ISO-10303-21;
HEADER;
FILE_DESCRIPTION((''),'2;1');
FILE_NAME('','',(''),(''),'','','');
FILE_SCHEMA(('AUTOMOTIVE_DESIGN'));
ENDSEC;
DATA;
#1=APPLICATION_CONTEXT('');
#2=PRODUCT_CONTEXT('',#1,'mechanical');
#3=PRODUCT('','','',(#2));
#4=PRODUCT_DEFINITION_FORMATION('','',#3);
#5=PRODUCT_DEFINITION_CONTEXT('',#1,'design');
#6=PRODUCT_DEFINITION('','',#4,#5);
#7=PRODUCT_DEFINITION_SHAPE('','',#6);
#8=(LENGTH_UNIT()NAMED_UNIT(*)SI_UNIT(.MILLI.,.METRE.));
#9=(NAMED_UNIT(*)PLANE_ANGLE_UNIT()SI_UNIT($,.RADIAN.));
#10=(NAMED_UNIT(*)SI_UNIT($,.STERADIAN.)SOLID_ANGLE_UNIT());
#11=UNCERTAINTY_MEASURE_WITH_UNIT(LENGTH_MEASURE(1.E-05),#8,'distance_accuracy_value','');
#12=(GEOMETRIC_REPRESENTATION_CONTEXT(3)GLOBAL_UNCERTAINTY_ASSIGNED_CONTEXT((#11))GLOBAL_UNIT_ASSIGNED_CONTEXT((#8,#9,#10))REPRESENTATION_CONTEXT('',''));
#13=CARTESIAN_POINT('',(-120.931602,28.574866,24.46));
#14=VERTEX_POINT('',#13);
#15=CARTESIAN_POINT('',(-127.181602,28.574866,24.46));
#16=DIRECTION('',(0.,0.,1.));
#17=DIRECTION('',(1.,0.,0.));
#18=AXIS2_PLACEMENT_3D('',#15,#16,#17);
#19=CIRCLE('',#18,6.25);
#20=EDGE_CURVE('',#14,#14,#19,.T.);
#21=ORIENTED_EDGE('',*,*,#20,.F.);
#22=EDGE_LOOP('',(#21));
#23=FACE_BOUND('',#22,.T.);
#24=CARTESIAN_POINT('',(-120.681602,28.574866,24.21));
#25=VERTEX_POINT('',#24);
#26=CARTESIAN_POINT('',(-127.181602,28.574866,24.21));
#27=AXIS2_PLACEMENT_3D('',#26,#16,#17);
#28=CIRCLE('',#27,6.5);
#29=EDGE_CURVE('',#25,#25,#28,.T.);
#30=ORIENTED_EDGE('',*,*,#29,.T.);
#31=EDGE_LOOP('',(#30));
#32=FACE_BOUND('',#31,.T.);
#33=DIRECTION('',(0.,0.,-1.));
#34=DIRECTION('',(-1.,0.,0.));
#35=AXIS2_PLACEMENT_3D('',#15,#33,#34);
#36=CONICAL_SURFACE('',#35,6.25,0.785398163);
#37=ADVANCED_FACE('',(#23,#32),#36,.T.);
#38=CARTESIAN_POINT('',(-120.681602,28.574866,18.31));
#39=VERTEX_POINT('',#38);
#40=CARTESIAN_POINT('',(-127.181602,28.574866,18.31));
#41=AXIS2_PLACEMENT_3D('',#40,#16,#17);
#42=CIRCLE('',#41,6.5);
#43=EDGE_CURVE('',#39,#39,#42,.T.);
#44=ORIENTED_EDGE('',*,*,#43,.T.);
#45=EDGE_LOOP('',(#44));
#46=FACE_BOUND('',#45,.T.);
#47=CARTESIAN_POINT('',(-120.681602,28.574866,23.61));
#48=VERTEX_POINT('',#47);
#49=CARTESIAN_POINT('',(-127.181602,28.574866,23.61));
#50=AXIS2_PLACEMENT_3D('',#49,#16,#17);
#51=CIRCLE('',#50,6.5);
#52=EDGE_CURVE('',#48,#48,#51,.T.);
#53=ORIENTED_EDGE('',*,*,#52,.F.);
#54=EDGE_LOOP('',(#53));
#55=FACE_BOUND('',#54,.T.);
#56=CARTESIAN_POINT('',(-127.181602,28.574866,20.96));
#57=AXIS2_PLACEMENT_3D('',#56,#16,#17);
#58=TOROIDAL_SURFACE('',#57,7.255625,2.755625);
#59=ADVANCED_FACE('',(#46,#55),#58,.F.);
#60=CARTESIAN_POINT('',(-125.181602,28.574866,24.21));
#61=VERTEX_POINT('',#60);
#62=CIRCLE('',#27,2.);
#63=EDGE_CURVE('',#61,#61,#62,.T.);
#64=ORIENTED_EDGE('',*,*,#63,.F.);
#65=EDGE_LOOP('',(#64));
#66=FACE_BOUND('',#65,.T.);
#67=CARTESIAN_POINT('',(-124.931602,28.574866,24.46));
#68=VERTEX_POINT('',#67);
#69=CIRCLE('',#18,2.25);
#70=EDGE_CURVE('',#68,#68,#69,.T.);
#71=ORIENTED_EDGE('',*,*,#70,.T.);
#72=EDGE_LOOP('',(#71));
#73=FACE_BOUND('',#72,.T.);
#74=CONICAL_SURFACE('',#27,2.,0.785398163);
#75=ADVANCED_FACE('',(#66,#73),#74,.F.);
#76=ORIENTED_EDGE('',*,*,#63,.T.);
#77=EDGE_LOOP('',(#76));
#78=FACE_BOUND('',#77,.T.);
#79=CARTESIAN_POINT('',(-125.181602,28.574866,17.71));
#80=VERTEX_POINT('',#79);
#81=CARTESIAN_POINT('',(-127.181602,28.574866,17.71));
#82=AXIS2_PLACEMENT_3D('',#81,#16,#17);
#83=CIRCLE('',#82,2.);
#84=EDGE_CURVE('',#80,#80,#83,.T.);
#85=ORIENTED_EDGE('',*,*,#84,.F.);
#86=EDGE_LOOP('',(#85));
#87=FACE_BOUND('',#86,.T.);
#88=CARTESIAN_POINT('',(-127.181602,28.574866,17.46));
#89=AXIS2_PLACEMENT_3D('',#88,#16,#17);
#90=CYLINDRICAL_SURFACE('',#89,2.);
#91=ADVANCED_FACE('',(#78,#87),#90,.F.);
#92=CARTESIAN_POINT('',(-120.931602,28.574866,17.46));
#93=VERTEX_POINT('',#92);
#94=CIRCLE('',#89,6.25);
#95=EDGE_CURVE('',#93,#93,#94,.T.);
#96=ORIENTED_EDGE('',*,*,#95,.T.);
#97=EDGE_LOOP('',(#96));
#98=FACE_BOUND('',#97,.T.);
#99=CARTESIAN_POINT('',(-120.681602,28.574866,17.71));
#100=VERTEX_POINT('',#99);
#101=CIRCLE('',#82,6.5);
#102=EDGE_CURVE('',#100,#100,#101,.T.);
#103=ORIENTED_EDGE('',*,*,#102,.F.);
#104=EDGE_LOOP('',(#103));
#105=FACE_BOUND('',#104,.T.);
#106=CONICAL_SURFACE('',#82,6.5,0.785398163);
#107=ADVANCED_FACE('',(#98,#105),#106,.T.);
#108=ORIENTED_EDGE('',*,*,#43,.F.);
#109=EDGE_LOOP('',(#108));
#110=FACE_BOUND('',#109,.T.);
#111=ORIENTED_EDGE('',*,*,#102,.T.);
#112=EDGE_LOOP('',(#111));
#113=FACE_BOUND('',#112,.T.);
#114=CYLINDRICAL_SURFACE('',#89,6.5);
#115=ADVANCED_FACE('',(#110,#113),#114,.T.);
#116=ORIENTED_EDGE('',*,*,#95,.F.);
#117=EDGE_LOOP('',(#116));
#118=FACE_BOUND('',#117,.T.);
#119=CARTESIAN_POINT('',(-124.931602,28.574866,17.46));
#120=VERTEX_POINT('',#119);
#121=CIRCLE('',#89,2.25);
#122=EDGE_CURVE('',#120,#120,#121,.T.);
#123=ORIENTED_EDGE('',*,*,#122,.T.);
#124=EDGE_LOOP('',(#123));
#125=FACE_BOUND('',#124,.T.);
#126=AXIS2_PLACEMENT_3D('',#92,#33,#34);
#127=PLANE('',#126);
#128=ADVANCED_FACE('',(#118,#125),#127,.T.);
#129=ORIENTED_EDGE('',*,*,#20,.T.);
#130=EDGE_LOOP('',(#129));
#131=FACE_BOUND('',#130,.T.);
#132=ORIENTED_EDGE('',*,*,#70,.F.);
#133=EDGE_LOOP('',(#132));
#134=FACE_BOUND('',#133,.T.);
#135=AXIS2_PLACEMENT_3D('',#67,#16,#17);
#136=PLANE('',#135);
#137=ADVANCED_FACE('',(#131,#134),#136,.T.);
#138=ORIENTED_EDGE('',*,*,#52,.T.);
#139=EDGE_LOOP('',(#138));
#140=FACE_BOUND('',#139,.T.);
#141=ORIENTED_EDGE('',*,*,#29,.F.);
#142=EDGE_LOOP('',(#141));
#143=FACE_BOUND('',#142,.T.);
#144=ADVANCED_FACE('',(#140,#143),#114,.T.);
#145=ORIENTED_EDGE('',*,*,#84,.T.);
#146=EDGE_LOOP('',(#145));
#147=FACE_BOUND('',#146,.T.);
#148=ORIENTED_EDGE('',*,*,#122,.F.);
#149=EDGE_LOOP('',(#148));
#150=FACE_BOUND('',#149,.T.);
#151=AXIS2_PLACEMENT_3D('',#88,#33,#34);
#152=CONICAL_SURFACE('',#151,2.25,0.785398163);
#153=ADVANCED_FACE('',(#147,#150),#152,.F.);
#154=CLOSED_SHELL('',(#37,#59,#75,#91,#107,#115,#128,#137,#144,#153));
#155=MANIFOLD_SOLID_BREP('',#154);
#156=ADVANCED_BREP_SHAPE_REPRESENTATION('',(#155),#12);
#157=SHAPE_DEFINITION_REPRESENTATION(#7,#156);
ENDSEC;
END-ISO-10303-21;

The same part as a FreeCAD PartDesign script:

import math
import FreeCAD as App
import Part
import Sketcher
from FreeCAD import Vector
Q = App.Units.Quantity

doc = App.newDocument("Part")
params = doc.addObject("Spreadsheet::Sheet", "Params")
for row, (alias, value) in enumerate([
    ("sketch1_width", "4 mm"),
    ("sketch1_height", "7 mm"),
    ("sketch1_height2", "6.5 mm"),
    ("sketch1_height3", "0.6 mm"),
    ("revolution_angle", "360 deg"),
], start=1):
    params.set(f"A{row}", alias)
    params.set(f"B{row}", "=" + value)
    params.setAlias(f"B{row}", alias)

body = doc.addObject("PartDesign::Body", "Body")

sketch1 = body.newObject("Sketcher::SketchObject", "Sketch")
sketch1.AttachmentSupport = (doc.getObject("XZ_Plane"), [""])
sketch1.MapMode = "FlatFace"
sketch1.AttachmentOffset = App.Placement(Vector(0, 0, -28.574866), App.Rotation())
sketch1.addGeometry([
    Part.LineSegment(Vector(-120.681602, 17.71, 0), Vector(-120.931602, 17.46, 0)),
    Part.LineSegment(Vector(-120.931602, 17.46, 0), Vector(-124.931602, 17.46, 0)),
    Part.LineSegment(Vector(-124.931602, 17.46, 0), Vector(-125.181602, 17.71, 0)),
    Part.LineSegment(Vector(-125.181602, 17.71, 0), Vector(-125.181602, 24.21, 0)),
    Part.LineSegment(Vector(-125.181602, 24.21, 0), Vector(-124.931602, 24.46, 0)),
    Part.LineSegment(Vector(-124.931602, 24.46, 0), Vector(-120.931602, 24.46, 0)),
    Part.LineSegment(Vector(-120.931602, 24.46, 0), Vector(-120.681602, 24.21, 0)),
    Part.LineSegment(Vector(-120.681602, 24.21, 0), Vector(-120.681602, 23.61, 0)),
    Part.ArcOfCircle(Part.Circle(Vector(-119.925977, 20.96, 0), Vector(0, 0, 1), 2.755625), math.radians(105.91505), math.radians(254.08495)),
    Part.LineSegment(Vector(-120.681602, 18.31, 0), Vector(-120.681602, 17.71, 0)),
], False)
sketch1.addGeometry(Part.LineSegment(Vector(-127.181602, 17.46, 0), Vector(-127.181602, 24.46, 0)), True)
sketch1.addConstraint([
    Sketcher.Constraint("Coincident", 0, 2, 1, 1),
    Sketcher.Constraint("Coincident", 1, 2, 2, 1),
    Sketcher.Constraint("Coincident", 2, 2, 3, 1),
    Sketcher.Constraint("Coincident", 3, 2, 4, 1),
    Sketcher.Constraint("Coincident", 4, 2, 5, 1),
    Sketcher.Constraint("Coincident", 5, 2, 6, 1),
    Sketcher.Constraint("Coincident", 6, 2, 7, 1),
    Sketcher.Constraint("Coincident", 7, 2, 8, 1),
    Sketcher.Constraint("Coincident", 8, 2, 9, 1),
    Sketcher.Constraint("Coincident", 9, 2, 0, 1),
    Sketcher.Constraint("Horizontal", 1),
    Sketcher.Constraint("Vertical", 3),
    Sketcher.Constraint("Horizontal", 5),
    Sketcher.Constraint("Vertical", 7),
    Sketcher.Constraint("Vertical", 9),
    Sketcher.Constraint("Vertical", 10),
    Sketcher.Constraint("Perpendicular", 0, 2),
    Sketcher.Constraint("Perpendicular", 2, 4),
    Sketcher.Constraint("Perpendicular", 4, 6),
    Sketcher.Constraint("Horizontal", 3, 2, 6, 2),
    Sketcher.Constraint("Horizontal", 2, 2, 9, 2),
    Sketcher.Constraint("Horizontal", 1, 2, 10, 1),
    Sketcher.Constraint("Horizontal", 5, 2, 10, 2),
    Sketcher.Constraint("Vertical", 1, 2, 4, 2),
    Sketcher.Constraint("Vertical", 0, 2, 5, 2),
    Sketcher.Constraint("Vertical", 7, 2, 8, 2),
    Sketcher.Constraint("Equal", 7, 9),
    Sketcher.Constraint("DistanceX", 1, 2, 1, 1, Q("4 mm")),
    Sketcher.Constraint("DistanceY", 10, 1, 10, 2, Q("7 mm")),
    Sketcher.Constraint("DistanceY", 3, 1, 3, 2, Q("6.5 mm")),
    Sketcher.Constraint("DistanceY", 7, 2, 7, 1, Q("0.6 mm")),
    Sketcher.Constraint("DistanceX", 10, 1, 2, 2, Q("2 mm")),
    Sketcher.Constraint("DistanceY", -1, 1, 8, 3, Q("20.96 mm")),
    Sketcher.Constraint("Radius", 8, Q("2.755625 mm")),
    Sketcher.Constraint("DistanceX", 0, 2, -1, 1, Q("120.931602 mm")),
])
sketch1.setExpression("Constraints[27]", "Params.sketch1_width")
sketch1.setExpression("Constraints[28]", "Params.sketch1_height")
sketch1.setExpression("Constraints[29]", "Params.sketch1_height2")
sketch1.setExpression("Constraints[30]", "Params.sketch1_height3")
revolution = body.newObject("PartDesign::Revolution", "Revolution")
revolution.Profile = sketch1
revolution.ReferenceAxis = (sketch1, ["Axis0"])
revolution.setExpression("Angle", "Params.revolution_angle")

doc.recompute()
